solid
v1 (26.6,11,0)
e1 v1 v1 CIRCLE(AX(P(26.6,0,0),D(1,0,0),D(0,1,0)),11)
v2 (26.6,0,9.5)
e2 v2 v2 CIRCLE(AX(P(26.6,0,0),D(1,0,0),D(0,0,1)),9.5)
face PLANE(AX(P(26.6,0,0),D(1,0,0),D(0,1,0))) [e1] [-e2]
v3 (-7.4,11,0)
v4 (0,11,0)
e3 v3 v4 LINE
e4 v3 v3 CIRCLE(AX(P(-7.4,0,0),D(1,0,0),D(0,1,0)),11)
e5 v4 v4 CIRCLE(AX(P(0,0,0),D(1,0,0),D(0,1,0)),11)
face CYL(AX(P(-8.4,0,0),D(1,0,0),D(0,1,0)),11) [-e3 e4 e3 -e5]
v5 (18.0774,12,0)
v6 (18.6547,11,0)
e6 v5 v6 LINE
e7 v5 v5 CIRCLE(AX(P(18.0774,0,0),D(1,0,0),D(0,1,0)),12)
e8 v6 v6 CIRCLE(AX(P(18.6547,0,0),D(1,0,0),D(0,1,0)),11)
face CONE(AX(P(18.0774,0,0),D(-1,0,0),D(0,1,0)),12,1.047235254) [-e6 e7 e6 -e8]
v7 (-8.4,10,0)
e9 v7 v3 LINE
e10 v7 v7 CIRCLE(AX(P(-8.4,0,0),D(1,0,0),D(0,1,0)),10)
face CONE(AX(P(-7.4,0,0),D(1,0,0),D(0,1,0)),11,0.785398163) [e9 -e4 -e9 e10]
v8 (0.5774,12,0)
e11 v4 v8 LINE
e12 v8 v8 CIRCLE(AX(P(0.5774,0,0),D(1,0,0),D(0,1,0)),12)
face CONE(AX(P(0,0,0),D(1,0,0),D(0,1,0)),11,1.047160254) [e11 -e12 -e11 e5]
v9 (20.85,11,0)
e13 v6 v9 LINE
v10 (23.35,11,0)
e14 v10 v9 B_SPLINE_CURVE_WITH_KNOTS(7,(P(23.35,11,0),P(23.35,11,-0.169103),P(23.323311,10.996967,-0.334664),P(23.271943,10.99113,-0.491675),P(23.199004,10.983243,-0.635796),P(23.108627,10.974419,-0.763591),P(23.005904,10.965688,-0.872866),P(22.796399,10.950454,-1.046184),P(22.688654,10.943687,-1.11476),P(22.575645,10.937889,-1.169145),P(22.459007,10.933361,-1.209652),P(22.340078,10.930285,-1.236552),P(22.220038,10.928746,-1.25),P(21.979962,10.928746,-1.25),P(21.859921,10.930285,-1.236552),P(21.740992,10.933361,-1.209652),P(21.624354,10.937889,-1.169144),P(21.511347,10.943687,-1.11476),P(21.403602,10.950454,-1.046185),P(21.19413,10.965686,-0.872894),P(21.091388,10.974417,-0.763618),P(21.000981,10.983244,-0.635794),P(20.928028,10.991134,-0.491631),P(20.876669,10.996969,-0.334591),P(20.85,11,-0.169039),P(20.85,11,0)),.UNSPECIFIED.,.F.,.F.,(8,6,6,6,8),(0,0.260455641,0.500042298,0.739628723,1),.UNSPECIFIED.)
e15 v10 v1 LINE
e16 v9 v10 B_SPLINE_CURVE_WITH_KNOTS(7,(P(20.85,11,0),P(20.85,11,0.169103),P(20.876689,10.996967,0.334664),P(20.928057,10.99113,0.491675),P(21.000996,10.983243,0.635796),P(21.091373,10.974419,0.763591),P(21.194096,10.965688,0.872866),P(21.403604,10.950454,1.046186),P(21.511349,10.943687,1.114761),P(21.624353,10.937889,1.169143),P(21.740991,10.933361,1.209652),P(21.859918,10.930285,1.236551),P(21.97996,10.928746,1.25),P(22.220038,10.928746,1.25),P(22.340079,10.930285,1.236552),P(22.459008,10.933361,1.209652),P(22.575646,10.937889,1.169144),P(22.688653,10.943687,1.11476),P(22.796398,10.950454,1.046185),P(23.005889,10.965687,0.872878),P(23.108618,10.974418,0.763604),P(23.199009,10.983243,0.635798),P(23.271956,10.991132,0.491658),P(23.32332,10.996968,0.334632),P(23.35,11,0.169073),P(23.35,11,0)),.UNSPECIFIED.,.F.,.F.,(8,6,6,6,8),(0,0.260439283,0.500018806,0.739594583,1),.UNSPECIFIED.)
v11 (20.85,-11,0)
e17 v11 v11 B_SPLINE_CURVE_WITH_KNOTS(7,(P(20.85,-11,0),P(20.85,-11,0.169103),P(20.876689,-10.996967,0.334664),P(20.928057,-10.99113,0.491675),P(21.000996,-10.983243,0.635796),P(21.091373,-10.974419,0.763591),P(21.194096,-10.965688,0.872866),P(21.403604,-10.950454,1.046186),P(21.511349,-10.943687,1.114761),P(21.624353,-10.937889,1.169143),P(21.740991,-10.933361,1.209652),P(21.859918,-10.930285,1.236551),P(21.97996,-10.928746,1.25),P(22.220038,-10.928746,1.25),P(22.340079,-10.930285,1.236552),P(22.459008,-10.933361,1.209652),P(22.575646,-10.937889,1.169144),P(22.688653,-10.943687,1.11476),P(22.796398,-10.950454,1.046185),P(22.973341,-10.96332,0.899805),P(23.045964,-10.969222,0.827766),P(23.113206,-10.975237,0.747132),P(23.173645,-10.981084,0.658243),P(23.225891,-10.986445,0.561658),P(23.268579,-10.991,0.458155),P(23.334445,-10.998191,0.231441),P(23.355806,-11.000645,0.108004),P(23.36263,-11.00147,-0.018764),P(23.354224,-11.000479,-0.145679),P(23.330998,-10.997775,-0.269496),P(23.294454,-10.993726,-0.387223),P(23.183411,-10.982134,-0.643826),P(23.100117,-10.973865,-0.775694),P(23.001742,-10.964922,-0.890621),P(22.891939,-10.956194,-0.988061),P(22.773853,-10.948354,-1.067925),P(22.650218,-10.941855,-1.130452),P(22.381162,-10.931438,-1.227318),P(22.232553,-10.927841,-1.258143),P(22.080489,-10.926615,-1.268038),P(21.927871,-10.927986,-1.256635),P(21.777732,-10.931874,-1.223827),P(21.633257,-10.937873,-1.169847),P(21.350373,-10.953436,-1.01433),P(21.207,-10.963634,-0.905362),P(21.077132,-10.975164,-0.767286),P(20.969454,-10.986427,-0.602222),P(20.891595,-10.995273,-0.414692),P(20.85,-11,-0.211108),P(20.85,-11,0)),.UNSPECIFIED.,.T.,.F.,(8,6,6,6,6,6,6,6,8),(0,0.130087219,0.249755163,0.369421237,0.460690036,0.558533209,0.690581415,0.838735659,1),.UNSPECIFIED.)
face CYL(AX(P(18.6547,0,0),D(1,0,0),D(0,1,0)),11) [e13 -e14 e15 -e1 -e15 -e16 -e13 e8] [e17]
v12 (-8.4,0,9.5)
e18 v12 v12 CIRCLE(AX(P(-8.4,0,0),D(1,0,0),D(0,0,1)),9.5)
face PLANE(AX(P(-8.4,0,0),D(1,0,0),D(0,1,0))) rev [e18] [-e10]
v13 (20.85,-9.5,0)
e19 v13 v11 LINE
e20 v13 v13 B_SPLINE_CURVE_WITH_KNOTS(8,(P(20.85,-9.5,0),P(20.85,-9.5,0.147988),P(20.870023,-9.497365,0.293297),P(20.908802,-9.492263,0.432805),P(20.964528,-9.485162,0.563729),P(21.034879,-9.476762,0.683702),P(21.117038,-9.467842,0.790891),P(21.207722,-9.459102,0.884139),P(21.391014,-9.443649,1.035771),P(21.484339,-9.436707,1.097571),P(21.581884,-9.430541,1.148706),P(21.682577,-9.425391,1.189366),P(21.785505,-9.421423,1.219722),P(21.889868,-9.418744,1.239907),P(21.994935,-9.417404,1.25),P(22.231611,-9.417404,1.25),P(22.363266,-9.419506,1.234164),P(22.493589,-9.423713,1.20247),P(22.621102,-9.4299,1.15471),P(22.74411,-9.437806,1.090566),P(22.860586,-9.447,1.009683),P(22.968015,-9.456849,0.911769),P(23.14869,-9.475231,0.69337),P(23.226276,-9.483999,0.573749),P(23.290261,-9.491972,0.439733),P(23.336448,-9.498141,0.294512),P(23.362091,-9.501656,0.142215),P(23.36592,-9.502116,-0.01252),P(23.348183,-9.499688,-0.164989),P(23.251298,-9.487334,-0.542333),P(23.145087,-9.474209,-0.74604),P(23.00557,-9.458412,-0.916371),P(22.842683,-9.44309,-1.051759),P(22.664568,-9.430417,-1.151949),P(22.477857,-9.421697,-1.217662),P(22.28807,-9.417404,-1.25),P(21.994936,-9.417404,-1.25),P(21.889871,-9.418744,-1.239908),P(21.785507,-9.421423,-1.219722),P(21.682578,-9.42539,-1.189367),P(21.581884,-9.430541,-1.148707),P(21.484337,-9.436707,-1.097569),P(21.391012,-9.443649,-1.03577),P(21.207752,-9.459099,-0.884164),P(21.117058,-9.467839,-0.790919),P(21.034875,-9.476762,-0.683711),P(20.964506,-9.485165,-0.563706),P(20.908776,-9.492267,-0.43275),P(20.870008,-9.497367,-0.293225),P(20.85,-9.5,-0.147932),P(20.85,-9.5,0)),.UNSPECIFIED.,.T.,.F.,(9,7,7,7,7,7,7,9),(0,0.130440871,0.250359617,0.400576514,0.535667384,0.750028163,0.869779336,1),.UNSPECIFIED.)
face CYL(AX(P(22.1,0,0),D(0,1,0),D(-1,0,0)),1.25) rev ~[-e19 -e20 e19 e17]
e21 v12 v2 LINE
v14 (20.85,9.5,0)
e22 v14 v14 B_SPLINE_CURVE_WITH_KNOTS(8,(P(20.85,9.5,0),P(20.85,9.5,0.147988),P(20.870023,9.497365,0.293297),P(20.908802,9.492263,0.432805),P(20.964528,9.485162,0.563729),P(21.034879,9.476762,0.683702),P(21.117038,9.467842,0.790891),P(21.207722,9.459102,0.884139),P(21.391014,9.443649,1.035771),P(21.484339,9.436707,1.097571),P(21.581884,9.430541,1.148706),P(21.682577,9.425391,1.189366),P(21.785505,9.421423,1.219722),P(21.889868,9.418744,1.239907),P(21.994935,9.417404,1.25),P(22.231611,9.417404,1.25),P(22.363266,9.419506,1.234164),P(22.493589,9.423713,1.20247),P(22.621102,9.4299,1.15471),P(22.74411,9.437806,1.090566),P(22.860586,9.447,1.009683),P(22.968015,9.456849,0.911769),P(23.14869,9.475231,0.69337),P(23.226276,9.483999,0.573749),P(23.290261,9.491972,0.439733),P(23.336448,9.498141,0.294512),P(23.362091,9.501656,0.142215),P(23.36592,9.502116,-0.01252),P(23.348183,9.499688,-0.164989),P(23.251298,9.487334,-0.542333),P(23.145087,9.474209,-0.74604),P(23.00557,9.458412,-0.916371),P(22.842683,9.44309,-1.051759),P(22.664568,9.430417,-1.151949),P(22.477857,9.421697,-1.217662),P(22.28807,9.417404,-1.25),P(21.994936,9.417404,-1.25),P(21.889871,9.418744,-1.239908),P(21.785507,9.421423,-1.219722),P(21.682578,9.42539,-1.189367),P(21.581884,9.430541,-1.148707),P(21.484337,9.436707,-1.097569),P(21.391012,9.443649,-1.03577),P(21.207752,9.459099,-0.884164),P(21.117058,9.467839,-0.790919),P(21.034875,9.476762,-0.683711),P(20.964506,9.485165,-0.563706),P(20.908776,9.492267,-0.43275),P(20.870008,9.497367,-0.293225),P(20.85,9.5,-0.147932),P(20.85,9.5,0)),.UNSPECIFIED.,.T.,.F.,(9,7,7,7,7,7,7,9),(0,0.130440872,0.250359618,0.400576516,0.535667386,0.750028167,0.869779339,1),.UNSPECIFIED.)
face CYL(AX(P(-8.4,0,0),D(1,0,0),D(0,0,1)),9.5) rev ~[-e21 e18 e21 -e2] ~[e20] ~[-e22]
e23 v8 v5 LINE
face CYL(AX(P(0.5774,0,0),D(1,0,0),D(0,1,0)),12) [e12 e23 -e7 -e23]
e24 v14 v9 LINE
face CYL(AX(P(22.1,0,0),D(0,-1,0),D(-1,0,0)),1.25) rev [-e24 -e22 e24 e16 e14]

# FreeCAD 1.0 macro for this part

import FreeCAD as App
import Part
import Sketcher

V = App.Vector


def edges_at(feature, points):
    """Names of the edges that pass closest to the given points."""
    edges = feature.Shape.Edges
    near = lambda p: min(range(len(edges)), key=lambda i: edges[i].distToShape(Part.Vertex(*p))[0])
    return sorted({f"Edge{near(p) + 1}" for p in points})


def add_polygon(sketch, points):
    """Adds a closed chain of lines whose ends are joined by coincident constraints."""
    first, n = sketch.GeometryCount, len(points)
    for a, b in zip(points, points[1:] + points[:1]):
        sketch.addGeometry(Part.LineSegment(App.Vector(*a, 0), App.Vector(*b, 0)), False)
    for i in range(n):
        sketch.addConstraint(Sketcher.Constraint("Coincident", first + i, 2, first + (i + 1) % n, 1))

doc = App.newDocument("Part")
body = doc.addObject("PartDesign::Body", "Body")

sketch1 = body.newObject("Sketcher::SketchObject", "Sketch")
sketch1.AttachmentSupport = (doc.getObject("XY_Plane"), [""])
sketch1.MapMode = "FlatFace"
add_polygon(sketch1, [(-8.4, 11), (-8.4, 0), (0, 0), (0, 9), (18.6, 9), (18.6, 0), (26.6, 0), (26.6, 11), (18.7, 11), (18.1, 12), (0.6, 12), (0, 11)])
sketch1.addConstraint(Sketcher.Constraint("Vertical", 0))
sketch1.addConstraint(Sketcher.Constraint("Horizontal", 1))
sketch1.addConstraint(Sketcher.Constraint("Vertical", 2))
sketch1.addConstraint(Sketcher.Constraint("Horizontal", 3))
sketch1.addConstraint(Sketcher.Constraint("Vertical", 4))
sketch1.addConstraint(Sketcher.Constraint("Horizontal", 5))
sketch1.addConstraint(Sketcher.Constraint("Vertical", 6))
sketch1.addConstraint(Sketcher.Constraint("Horizontal", 7))
sketch1.addConstraint(Sketcher.Constraint("Horizontal", 9))
sketch1.addConstraint(Sketcher.Constraint("Horizontal", 11))
sketch1.addConstraint(Sketcher.Constraint("Coincident", 1, 2, -1, 1))
sketch1.addConstraint(Sketcher.Constraint("PointOnObject", 4, 2, -1))
sketch1.addConstraint(Sketcher.Constraint("PointOnObject", 10, 2, -2))
sketch1.addConstraint(Sketcher.Constraint("Horizontal", 7, 2, 10, 2))
sketch1.addConstraint(Sketcher.Constraint("Equal", 8, 10))
sketch1.addConstraint(Sketcher.Constraint("DistanceX", 5, 1, 5, 2, 8.0))
sketch1.addConstraint(Sketcher.Constraint("DistanceY", 0, 2, 0, 1, 11.0))
sketch1.addConstraint(Sketcher.Constraint("DistanceY", 2, 1, 2, 2, 9.0))
sketch1.addConstraint(Sketcher.Constraint("DistanceX", 1, 1, 1, 2, 8.4))
sketch1.addConstraint(Sketcher.Constraint("DistanceX", 9, 2, 9, 1, 17.5))
sketch1.addConstraint(Sketcher.Constraint("DistanceX", 0, 2, 5, 2, 35.0))
sketch1.addConstraint(Sketcher.Constraint("DistanceY", 7, 2, 8, 2, 1.0))
sketch1.addConstraint(Sketcher.Constraint("DistanceX", 7, 2, 7, 1, 7.9453))
revolution = body.newObject("PartDesign::Revolution", "Revolution")
revolution.Profile = sketch1
revolution.ReferenceAxis = (sketch1, ["H_Axis"])
revolution.Angle = 360

sketch2 = body.newObject("Sketcher::SketchObject", "Sketch001")
sketch2.AttachmentSupport = (doc.getObject("YZ_Plane"), [""])
sketch2.MapMode = "FlatFace"
sketch2.AttachmentOffset = App.Placement(V(0, 0, -8.4), App.Rotation())
sketch2.addGeometry(Part.Circle(V(0, 0, 0), V(0, 0, 1), 10), False)
sketch2.addConstraint(Sketcher.Constraint("Coincident", 0, 3, -1, 1))
sketch2.addConstraint(Sketcher.Constraint("Diameter", 0, 19.0))
doc.recompute()
hole = body.newObject("PartDesign::Hole", "Hole")
hole.Profile = sketch2
hole.ThreadType = "None"
hole.Diameter = 19
hole.DepthType = "ThroughAll"
hole.Reversed = True
doc.recompute()

chamfer = body.newObject("PartDesign::Chamfer", "Chamfer")
chamfer.Base = (hole, edges_at(hole, [(-8.4, -11, 0)]))
chamfer.Size = 1

sketch3 = body.newObject("Sketcher::SketchObject", "Sketch002")
sketch3.AttachmentSupport = (doc.getObject("XZ_Plane"), [""])
sketch3.MapMode = "FlatFace"
sketch3.addGeometry(Part.Circle(V(22.1, 0, 0), V(0, 0, 1), 1.2), False)
sketch3.addConstraint(Sketcher.Constraint("PointOnObject", 0, 3, -1))
sketch3.addConstraint(Sketcher.Constraint("Diameter", 0, 2.5))
sketch3.addConstraint(Sketcher.Constraint("DistanceX", -1, 1, 0, 3, 22.1))
pocket1 = body.newObject("PartDesign::Pocket", "Pocket")
pocket1.Profile = sketch3
pocket1.Type = "ThroughAll"
pocket1.Midplane = True

doc.recompute()
